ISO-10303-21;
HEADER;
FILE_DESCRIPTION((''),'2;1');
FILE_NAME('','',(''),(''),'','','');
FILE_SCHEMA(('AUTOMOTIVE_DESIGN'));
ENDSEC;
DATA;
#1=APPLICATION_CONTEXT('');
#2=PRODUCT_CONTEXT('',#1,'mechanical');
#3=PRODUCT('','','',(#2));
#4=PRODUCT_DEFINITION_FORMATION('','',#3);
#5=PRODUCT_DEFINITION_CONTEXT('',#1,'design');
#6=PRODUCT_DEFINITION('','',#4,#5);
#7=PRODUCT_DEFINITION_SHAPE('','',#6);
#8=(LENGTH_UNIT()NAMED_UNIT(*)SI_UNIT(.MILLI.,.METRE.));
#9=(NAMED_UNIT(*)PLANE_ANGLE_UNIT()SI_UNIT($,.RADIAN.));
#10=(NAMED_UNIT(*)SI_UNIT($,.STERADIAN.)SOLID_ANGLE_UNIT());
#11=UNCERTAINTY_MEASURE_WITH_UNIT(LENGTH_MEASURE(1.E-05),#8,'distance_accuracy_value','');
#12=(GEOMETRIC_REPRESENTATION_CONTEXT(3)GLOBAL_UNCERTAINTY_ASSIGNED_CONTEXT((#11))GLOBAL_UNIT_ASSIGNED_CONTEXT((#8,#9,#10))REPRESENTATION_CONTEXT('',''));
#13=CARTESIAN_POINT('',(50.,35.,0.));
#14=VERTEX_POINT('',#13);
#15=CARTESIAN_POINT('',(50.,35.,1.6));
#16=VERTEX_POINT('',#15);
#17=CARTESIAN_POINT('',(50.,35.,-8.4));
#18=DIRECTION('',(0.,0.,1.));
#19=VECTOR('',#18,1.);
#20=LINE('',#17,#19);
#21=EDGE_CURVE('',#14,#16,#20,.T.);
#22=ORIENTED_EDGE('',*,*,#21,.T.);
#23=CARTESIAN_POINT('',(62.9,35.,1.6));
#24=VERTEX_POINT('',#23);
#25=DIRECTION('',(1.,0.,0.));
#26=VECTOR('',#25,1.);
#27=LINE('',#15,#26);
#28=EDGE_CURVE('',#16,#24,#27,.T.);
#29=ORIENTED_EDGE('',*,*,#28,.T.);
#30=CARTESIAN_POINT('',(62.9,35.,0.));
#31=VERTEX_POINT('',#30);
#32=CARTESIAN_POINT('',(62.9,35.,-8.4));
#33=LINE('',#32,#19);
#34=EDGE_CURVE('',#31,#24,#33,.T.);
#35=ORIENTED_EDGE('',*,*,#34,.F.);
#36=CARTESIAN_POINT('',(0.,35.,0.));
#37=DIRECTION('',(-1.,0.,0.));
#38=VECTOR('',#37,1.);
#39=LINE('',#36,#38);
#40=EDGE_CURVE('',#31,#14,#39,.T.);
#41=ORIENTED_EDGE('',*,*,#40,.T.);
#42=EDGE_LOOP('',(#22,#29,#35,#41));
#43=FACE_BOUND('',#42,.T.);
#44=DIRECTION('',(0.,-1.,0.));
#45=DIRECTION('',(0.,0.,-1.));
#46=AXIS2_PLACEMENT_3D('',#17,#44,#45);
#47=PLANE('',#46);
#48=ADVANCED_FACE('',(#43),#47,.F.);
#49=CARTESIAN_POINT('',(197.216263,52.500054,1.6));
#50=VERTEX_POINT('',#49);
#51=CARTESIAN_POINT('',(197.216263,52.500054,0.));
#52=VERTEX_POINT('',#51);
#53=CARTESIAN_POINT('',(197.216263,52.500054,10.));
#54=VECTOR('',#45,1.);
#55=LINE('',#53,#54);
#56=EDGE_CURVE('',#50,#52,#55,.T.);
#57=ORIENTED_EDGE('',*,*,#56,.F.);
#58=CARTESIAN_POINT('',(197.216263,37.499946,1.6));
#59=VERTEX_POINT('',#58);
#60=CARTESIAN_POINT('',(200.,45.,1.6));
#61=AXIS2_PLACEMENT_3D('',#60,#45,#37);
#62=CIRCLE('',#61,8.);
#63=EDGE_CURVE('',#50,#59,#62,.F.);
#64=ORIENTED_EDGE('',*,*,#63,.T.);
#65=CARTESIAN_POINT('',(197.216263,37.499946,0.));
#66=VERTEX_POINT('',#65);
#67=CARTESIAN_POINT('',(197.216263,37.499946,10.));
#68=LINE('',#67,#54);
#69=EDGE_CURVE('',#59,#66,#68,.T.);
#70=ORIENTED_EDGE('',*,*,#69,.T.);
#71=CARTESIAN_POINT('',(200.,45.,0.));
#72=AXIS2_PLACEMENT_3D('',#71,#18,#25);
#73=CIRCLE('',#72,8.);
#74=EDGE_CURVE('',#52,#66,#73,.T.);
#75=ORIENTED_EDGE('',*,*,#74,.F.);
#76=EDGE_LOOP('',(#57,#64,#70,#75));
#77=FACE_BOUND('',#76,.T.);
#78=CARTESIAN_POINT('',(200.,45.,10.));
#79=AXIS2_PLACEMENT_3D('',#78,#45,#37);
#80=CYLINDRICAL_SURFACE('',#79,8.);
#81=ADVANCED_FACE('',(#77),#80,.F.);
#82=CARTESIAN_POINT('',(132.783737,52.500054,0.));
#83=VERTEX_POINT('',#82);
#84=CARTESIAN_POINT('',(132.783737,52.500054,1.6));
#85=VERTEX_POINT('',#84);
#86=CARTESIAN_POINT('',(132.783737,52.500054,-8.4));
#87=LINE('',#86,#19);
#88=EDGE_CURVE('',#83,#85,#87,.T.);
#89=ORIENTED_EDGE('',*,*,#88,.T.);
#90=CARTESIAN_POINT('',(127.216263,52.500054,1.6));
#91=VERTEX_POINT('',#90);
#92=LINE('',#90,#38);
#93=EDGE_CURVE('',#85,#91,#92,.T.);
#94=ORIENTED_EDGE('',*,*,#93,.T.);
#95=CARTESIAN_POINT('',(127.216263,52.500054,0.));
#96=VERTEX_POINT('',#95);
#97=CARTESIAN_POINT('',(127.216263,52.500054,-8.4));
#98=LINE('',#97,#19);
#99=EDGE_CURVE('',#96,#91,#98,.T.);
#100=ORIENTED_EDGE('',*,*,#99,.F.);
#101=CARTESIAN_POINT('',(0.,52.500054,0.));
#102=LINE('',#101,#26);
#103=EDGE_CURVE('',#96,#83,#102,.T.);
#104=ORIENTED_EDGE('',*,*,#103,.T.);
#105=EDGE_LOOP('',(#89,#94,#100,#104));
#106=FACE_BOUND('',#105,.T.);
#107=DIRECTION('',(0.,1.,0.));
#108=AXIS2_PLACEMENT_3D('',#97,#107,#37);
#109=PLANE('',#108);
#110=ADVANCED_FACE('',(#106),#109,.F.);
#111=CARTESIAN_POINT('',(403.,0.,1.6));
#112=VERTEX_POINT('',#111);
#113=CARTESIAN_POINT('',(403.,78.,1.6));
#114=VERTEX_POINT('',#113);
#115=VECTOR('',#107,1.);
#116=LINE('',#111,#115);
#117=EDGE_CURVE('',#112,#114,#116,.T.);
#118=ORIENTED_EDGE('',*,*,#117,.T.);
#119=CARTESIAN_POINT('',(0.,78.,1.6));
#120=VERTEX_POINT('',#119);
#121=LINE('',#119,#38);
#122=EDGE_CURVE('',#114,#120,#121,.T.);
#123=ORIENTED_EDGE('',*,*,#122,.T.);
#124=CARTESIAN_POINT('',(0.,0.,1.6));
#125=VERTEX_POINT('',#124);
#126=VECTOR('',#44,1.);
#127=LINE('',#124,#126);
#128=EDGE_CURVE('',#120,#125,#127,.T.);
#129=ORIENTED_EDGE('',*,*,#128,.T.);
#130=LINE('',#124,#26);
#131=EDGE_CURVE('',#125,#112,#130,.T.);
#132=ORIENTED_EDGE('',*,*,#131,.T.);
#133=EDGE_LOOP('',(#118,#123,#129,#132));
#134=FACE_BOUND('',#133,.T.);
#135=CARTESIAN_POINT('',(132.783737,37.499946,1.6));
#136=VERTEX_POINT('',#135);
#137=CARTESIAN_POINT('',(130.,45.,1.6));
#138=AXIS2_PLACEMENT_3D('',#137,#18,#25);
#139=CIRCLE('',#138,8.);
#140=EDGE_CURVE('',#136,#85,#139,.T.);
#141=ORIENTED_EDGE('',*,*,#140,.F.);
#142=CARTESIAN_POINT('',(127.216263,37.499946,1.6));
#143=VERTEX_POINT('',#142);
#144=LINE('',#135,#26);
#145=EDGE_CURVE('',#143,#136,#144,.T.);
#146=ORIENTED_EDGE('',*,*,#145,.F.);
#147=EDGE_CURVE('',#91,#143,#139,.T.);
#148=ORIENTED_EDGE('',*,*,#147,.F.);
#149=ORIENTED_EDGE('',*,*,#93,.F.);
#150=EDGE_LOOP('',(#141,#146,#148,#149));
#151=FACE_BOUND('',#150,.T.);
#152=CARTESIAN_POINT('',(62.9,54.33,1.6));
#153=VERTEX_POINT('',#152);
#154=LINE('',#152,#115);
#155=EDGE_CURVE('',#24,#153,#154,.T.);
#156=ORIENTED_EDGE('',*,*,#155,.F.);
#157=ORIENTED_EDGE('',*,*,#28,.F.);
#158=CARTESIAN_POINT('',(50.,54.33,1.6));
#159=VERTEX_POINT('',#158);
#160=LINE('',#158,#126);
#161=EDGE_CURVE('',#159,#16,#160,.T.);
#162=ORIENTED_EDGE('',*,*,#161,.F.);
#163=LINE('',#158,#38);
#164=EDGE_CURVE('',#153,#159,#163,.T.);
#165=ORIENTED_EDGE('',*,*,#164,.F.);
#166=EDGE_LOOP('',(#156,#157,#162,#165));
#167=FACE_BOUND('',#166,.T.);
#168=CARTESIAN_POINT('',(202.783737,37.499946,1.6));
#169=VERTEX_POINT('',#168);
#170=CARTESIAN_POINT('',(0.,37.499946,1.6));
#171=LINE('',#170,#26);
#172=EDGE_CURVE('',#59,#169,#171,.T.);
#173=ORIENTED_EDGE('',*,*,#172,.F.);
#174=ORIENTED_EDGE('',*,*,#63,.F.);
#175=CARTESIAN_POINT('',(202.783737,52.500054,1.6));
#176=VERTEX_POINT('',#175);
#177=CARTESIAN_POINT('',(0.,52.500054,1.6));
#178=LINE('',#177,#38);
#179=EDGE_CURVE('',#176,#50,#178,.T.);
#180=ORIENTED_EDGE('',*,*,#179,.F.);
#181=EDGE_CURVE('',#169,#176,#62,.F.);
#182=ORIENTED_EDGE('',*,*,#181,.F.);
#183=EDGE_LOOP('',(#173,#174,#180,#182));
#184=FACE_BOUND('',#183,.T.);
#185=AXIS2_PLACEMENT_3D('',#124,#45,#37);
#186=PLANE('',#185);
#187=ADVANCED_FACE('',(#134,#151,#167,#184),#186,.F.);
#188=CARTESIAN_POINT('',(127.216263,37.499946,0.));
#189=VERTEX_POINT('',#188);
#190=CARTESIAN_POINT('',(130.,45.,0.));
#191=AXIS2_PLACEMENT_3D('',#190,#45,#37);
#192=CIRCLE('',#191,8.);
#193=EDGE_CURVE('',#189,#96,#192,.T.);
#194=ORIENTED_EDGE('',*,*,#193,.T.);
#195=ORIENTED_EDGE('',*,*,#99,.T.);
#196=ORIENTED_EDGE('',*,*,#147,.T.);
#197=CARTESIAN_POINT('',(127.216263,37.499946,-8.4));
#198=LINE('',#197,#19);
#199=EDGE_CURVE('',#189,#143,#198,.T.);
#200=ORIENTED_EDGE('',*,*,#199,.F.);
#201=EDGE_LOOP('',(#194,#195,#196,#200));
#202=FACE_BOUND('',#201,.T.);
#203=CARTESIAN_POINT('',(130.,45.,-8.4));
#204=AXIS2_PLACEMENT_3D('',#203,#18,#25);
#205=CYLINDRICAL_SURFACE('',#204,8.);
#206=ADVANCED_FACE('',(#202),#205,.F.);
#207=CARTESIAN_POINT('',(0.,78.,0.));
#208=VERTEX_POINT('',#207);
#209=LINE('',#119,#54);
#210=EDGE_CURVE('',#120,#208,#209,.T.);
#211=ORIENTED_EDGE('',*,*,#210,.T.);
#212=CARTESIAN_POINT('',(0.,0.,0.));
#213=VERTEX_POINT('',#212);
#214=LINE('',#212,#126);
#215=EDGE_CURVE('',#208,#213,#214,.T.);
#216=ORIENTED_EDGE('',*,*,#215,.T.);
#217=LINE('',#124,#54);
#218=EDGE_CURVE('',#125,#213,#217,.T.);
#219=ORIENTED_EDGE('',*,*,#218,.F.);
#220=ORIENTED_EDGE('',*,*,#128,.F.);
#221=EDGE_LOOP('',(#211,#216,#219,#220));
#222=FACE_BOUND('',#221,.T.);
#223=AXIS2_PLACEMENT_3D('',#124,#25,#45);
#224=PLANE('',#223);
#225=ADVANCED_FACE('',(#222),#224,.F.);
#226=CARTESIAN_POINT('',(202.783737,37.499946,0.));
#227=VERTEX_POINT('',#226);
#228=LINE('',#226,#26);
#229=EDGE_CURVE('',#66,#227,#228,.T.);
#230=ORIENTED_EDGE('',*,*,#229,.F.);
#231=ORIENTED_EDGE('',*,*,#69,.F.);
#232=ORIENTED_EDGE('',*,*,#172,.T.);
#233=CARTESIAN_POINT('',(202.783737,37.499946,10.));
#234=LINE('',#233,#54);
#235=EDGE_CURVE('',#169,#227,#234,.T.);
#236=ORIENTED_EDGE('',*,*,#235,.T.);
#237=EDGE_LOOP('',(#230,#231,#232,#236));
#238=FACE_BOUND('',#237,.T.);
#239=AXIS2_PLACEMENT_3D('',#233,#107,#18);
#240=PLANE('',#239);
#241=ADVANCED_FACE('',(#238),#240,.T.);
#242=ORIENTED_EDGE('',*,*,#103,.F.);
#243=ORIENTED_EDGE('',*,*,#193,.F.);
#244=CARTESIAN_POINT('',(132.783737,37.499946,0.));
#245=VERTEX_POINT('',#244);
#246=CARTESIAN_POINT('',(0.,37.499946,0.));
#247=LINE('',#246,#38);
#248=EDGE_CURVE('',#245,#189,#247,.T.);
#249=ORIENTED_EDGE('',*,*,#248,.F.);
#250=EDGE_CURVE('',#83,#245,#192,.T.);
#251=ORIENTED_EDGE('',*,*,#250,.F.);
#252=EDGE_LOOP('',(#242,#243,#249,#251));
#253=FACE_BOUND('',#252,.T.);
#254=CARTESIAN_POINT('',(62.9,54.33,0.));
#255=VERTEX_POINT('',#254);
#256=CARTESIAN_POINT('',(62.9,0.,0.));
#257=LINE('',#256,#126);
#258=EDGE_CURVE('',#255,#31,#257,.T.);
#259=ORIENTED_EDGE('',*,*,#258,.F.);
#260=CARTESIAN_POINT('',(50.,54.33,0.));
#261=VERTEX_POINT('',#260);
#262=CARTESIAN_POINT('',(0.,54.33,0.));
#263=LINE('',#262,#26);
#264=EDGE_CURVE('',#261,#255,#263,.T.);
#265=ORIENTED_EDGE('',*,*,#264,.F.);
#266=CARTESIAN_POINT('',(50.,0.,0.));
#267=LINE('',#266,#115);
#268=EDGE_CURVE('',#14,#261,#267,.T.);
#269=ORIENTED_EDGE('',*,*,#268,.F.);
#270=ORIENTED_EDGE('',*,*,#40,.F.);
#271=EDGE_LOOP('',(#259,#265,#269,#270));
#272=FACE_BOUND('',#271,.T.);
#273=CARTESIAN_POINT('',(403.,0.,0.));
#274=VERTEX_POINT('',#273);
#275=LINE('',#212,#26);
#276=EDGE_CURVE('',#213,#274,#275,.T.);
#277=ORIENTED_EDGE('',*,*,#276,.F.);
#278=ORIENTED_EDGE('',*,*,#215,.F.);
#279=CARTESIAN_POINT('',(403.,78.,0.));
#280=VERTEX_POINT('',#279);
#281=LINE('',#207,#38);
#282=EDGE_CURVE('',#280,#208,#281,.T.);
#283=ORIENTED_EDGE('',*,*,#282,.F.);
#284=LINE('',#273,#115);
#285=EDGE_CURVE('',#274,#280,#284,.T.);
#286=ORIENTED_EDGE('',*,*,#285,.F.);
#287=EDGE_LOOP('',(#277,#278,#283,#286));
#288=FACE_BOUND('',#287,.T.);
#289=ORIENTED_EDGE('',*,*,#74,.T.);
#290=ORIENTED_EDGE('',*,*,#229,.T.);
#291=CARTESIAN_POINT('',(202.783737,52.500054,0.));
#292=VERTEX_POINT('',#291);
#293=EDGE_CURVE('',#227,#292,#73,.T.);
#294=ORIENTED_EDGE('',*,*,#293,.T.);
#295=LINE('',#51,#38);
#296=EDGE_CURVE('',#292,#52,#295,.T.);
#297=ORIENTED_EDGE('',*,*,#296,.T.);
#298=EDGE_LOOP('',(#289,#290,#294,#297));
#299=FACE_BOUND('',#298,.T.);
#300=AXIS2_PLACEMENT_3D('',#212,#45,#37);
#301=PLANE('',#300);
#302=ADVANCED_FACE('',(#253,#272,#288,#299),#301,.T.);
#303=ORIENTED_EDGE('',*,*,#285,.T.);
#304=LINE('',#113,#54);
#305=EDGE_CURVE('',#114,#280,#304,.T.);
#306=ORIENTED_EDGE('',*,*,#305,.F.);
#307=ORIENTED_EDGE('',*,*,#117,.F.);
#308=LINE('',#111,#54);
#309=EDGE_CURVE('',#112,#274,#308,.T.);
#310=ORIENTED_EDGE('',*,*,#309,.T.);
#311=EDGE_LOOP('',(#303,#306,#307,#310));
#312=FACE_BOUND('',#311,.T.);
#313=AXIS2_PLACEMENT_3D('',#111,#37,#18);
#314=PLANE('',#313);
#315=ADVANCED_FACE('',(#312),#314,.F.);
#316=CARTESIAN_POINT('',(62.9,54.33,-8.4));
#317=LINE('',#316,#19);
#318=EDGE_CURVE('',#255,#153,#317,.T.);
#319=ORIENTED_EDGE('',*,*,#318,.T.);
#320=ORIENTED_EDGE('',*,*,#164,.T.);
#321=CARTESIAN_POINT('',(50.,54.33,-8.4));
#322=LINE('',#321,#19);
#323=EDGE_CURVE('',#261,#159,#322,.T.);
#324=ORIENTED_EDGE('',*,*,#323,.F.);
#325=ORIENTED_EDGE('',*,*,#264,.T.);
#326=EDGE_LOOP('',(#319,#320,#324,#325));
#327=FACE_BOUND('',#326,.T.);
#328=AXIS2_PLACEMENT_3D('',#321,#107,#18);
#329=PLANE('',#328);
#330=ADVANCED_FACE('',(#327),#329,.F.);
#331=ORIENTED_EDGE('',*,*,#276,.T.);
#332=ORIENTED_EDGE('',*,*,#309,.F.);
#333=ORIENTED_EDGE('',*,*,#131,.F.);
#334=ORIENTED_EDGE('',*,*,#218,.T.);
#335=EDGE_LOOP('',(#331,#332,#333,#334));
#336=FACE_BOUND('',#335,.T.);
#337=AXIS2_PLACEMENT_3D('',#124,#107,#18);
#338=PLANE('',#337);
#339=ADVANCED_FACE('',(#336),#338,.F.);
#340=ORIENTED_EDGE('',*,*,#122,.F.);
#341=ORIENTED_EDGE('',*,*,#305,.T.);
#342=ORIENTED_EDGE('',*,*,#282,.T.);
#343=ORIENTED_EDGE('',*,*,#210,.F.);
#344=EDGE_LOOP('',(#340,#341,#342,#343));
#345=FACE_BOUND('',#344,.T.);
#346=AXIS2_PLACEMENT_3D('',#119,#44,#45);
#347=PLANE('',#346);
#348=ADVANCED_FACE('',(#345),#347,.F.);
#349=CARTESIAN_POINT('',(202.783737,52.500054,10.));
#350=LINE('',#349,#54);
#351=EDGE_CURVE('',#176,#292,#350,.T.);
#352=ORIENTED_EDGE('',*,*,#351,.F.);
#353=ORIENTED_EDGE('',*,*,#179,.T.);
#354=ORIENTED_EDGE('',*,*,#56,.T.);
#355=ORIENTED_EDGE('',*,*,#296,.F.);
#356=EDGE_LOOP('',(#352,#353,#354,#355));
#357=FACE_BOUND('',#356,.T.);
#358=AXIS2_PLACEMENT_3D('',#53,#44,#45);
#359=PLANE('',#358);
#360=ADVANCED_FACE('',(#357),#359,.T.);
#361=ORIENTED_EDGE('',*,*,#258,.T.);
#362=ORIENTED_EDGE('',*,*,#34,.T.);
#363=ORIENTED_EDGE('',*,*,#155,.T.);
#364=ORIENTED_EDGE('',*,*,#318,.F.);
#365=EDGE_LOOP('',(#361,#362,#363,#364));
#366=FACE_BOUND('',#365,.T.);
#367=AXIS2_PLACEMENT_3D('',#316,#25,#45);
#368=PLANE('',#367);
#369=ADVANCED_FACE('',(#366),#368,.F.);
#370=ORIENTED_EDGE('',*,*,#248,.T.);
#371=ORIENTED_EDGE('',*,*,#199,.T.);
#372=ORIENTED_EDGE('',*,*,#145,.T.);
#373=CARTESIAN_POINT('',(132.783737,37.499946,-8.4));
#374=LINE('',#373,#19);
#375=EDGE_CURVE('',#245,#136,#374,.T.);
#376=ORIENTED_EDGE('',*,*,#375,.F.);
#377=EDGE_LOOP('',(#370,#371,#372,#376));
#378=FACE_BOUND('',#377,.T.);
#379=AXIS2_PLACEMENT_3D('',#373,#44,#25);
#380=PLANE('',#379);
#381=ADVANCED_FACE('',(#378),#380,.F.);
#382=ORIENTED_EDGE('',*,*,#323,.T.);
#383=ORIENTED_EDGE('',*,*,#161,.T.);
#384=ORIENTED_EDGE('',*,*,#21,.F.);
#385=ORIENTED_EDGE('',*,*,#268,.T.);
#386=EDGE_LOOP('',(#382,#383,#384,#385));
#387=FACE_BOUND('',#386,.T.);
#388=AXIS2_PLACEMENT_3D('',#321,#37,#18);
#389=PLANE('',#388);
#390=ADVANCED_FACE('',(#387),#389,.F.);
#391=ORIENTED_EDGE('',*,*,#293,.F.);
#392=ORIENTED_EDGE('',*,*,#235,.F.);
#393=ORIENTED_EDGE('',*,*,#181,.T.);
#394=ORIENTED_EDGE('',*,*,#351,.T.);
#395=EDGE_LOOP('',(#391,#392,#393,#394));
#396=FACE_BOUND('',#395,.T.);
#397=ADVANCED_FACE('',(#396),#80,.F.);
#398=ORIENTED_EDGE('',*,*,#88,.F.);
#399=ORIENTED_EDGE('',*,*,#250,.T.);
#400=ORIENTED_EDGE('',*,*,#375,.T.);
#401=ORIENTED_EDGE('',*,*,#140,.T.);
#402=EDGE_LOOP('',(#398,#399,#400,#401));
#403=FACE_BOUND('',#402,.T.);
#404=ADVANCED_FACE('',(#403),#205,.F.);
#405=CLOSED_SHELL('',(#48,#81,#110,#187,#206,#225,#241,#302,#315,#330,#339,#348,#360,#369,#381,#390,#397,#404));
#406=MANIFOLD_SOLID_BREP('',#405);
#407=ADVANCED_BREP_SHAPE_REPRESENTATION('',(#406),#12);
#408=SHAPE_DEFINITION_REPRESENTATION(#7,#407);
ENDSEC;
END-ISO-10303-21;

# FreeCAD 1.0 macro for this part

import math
import FreeCAD as App
import Part
import Sketcher
from FreeCAD import Vector
Q = App.Units.Quantity


def add_polygon(sketch, points):
    """Adds a closed chain of lines whose ends are joined by coincident constraints."""
    first, n = sketch.GeometryCount, len(points)
    for a, b in zip(points, points[1:] + points[:1]):
        sketch.addGeometry(Part.LineSegment(App.Vector(*a, 0), App.Vector(*b, 0)), False)
    for i in range(n):
        sketch.addConstraint(Sketcher.Constraint("Coincident", first + i, 2, first + (i + 1) % n, 1))

doc = App.newDocument("Part")
params = doc.addObject("Spreadsheet::Sheet", "Params")
for row, (alias, value) in enumerate([
    ("sketch1_width", "403 mm"),
    ("sketch1_height", "78 mm"),
    ("pad1_length", "1.6 mm"),
    ("sketch2_width", "12.9 mm"),
    ("sketch2_height", "19.33 mm"),
    ("pocket1_length", "10 mm"),
    ("sketch3_radius", "8 mm"),
    ("pocket2_length", "10 mm"),
    ("sketch4_radius", "8 mm"),
    ("pocket3_length", "10 mm"),
], start=1):
    params.set(f"A{row}", alias)
    params.set(f"B{row}", "=" + value)
    params.setAlias(f"B{row}", alias)

body = doc.addObject("PartDesign::Body", "Body")

# Sketch on XY plane
sketch1 = body.newObject("Sketcher::SketchObject", "Sketch")
sketch1.AttachmentSupport = (doc.getObject("XY_Plane"), [""])
sketch1.MapMode = "FlatFace"
add_polygon(sketch1, [(0, 78), (0, 0), (403, 0), (403, 78)])  # lines 0-3
sketch1.addConstraint(Sketcher.Constraint("Vertical", 0))
sketch1.addConstraint(Sketcher.Constraint("Horizontal", 1))
sketch1.addConstraint(Sketcher.Constraint("Vertical", 2))
sketch1.addConstraint(Sketcher.Constraint("Horizontal", 3))
sketch1.addConstraint(Sketcher.Constraint("Coincident", 0, 2, -1, 1))
sketch1.addConstraint(Sketcher.Constraint("DistanceX", 1, 1, 1, 2, Q("403 mm")))
sketch1.addConstraint(Sketcher.Constraint("DistanceY", 0, 2, 0, 1, Q("78 mm")))
sketch1.setExpression("Constraints[9]", "Params.sketch1_width")
sketch1.setExpression("Constraints[10]", "Params.sketch1_height")
pad1 = body.newObject("PartDesign::Pad", "Pad")
pad1.Profile = sketch1
pad1.setExpression("Length", "Params.pad1_length")

# Sketch on XY plane
sketch2 = body.newObject("Sketcher::SketchObject", "Sketch001")
sketch2.AttachmentSupport = (doc.getObject("XY_Plane"), [""])
sketch2.MapMode = "FlatFace"
sketch2.AttachmentOffset = App.Placement(Vector(0, 0, 1.6), App.Rotation())
add_polygon(sketch2, [(50, 54.33), (50, 35), (62.9, 35), (62.9, 54.33)])  # lines 0-3
sketch2.addConstraint(Sketcher.Constraint("Vertical", 0))
sketch2.addConstraint(Sketcher.Constraint("Horizontal", 1))
sketch2.addConstraint(Sketcher.Constraint("Vertical", 2))
sketch2.addConstraint(Sketcher.Constraint("Horizontal", 3))
sketch2.addConstraint(Sketcher.Constraint("DistanceX", 1, 1, 1, 2, Q("12.9 mm")))
sketch2.addConstraint(Sketcher.Constraint("DistanceX", -1, 1, 0, 2, Q("50 mm")))
sketch2.addConstraint(Sketcher.Constraint("DistanceY", -1, 1, 0, 2, Q("35 mm")))
sketch2.addConstraint(Sketcher.Constraint("DistanceY", 0, 2, 0, 1, Q("19.33 mm")))
sketch2.setExpression("Constraints[8]", "Params.sketch2_width")
sketch2.setExpression("Constraints[11]", "Params.sketch2_height")
pocket1 = body.newObject("PartDesign::Pocket", "Pocket")
pocket1.Profile = sketch2
pocket1.setExpression("Length", "Params.pocket1_length")

# Sketch on XY plane
sketch3 = body.newObject("Sketcher::SketchObject", "Sketch002")
sketch3.AttachmentSupport = (doc.getObject("XY_Plane"), [""])
sketch3.MapMode = "FlatFace"
sketch3.addGeometry(Part.LineSegment(Vector(202.783737, 52.500054, 0), Vector(197.216263, 52.500054, 0)), False)
sketch3.addGeometry(Part.ArcOfCircle(Part.Circle(Vector(200, 45, 0), Vector(0, 0, 1), 8), math.radians(110.363022), math.radians(249.636978)), False)
sketch3.addGeometry(Part.LineSegment(Vector(197.216263, 37.499946, 0), Vector(202.783737, 37.499946, 0)), False)
sketch3.addGeometry(Part.ArcOfCircle(Part.Circle(Vector(200, 45, 0), Vector(0, 0, 1), 8), math.radians(-69.636978), math.radians(69.636978)), False)
sketch3.addConstraint(Sketcher.Constraint("Coincident", 0, 2, 1, 1))
sketch3.addConstraint(Sketcher.Constraint("Coincident", 1, 2, 2, 1))
sketch3.addConstraint(Sketcher.Constraint("Coincident", 2, 2, 3, 1))
sketch3.addConstraint(Sketcher.Constraint("Coincident", 3, 2, 0, 1))
sketch3.addConstraint(Sketcher.Constraint("Horizontal", 0))
sketch3.addConstraint(Sketcher.Constraint("Horizontal", 2))
sketch3.addConstraint(Sketcher.Constraint("Coincident", 3, 3, 1, 3))
sketch3.addConstraint(Sketcher.Constraint("Equal", 1, 3))
sketch3.addConstraint(Sketcher.Constraint("Vertical", 0, 2, 1, 2))
sketch3.addConstraint(Sketcher.Constraint("Radius", 1, Q("8 mm")))
sketch3.addConstraint(Sketcher.Constraint("DistanceX", -1, 1, 1, 3, Q("200 mm")))
sketch3.addConstraint(Sketcher.Constraint("DistanceY", -1, 1, 1, 3, Q("45 mm")))
sketch3.addConstraint(Sketcher.Constraint("DistanceX", 0, 2, 0, 1, Q("5.567473 mm")))
sketch3.setExpression("Constraints[9]", "Params.sketch3_radius")
pocket2 = body.newObject("PartDesign::Pocket", "Pocket001")
pocket2.Profile = sketch3
pocket2.setExpression("Length", "Params.pocket2_length")
pocket2.Reversed = True

# Sketch on XY plane
sketch4 = body.newObject("Sketcher::SketchObject", "Sketch003")
sketch4.AttachmentSupport = (doc.getObject("XY_Plane"), [""])
sketch4.MapMode = "FlatFace"
sketch4.AttachmentOffset = App.Placement(Vector(0, 0, 1.6), App.Rotation())
sketch4.addGeometry(Part.LineSegment(Vector(132.783737, 52.500054, 0), Vector(127.216263, 52.500054, 0)), False)
sketch4.addGeometry(Part.ArcOfCircle(Part.Circle(Vector(130, 45, 0), Vector(0, 0, 1), 8), math.radians(110.363022), math.radians(249.636978)), False)
sketch4.addGeometry(Part.LineSegment(Vector(127.216263, 37.499946, 0), Vector(132.783737, 37.499946, 0)), False)
sketch4.addGeometry(Part.ArcOfCircle(Part.Circle(Vector(130, 45, 0), Vector(0, 0, 1), 8), math.radians(-69.636978), math.radians(69.636978)), False)
sketch4.addConstraint(Sketcher.Constraint("Coincident", 0, 2, 1, 1))
sketch4.addConstraint(Sketcher.Constraint("Coincident", 1, 2, 2, 1))
sketch4.addConstraint(Sketcher.Constraint("Coincident", 2, 2, 3, 1))
sketch4.addConstraint(Sketcher.Constraint("Coincident", 3, 2, 0, 1))
sketch4.addConstraint(Sketcher.Constraint("Horizontal", 0))
sketch4.addConstraint(Sketcher.Constraint("Horizontal", 2))
sketch4.addConstraint(Sketcher.Constraint("Coincident", 3, 3, 1, 3))
sketch4.addConstraint(Sketcher.Constraint("Equal", 1, 3))
sketch4.addConstraint(Sketcher.Constraint("Vertical", 0, 2, 1, 2))
sketch4.addConstraint(Sketcher.Constraint("Radius", 1, Q("8 mm")))
sketch4.addConstraint(Sketcher.Constraint("DistanceX", -1, 1, 1, 3, Q("130 mm")))
sketch4.addConstraint(Sketcher.Constraint("DistanceY", -1, 1, 1, 3, Q("45 mm")))
sketch4.addConstraint(Sketcher.Constraint("DistanceX", 0, 2, 0, 1, Q("5.567473 mm")))
sketch4.setExpression("Constraints[9]", "Params.sketch4_radius")
pocket3 = body.newObject("PartDesign::Pocket", "Pocket002")
pocket3.Profile = sketch4
pocket3.setExpression("Length", "Params.pocket3_length")

doc.recompute()
